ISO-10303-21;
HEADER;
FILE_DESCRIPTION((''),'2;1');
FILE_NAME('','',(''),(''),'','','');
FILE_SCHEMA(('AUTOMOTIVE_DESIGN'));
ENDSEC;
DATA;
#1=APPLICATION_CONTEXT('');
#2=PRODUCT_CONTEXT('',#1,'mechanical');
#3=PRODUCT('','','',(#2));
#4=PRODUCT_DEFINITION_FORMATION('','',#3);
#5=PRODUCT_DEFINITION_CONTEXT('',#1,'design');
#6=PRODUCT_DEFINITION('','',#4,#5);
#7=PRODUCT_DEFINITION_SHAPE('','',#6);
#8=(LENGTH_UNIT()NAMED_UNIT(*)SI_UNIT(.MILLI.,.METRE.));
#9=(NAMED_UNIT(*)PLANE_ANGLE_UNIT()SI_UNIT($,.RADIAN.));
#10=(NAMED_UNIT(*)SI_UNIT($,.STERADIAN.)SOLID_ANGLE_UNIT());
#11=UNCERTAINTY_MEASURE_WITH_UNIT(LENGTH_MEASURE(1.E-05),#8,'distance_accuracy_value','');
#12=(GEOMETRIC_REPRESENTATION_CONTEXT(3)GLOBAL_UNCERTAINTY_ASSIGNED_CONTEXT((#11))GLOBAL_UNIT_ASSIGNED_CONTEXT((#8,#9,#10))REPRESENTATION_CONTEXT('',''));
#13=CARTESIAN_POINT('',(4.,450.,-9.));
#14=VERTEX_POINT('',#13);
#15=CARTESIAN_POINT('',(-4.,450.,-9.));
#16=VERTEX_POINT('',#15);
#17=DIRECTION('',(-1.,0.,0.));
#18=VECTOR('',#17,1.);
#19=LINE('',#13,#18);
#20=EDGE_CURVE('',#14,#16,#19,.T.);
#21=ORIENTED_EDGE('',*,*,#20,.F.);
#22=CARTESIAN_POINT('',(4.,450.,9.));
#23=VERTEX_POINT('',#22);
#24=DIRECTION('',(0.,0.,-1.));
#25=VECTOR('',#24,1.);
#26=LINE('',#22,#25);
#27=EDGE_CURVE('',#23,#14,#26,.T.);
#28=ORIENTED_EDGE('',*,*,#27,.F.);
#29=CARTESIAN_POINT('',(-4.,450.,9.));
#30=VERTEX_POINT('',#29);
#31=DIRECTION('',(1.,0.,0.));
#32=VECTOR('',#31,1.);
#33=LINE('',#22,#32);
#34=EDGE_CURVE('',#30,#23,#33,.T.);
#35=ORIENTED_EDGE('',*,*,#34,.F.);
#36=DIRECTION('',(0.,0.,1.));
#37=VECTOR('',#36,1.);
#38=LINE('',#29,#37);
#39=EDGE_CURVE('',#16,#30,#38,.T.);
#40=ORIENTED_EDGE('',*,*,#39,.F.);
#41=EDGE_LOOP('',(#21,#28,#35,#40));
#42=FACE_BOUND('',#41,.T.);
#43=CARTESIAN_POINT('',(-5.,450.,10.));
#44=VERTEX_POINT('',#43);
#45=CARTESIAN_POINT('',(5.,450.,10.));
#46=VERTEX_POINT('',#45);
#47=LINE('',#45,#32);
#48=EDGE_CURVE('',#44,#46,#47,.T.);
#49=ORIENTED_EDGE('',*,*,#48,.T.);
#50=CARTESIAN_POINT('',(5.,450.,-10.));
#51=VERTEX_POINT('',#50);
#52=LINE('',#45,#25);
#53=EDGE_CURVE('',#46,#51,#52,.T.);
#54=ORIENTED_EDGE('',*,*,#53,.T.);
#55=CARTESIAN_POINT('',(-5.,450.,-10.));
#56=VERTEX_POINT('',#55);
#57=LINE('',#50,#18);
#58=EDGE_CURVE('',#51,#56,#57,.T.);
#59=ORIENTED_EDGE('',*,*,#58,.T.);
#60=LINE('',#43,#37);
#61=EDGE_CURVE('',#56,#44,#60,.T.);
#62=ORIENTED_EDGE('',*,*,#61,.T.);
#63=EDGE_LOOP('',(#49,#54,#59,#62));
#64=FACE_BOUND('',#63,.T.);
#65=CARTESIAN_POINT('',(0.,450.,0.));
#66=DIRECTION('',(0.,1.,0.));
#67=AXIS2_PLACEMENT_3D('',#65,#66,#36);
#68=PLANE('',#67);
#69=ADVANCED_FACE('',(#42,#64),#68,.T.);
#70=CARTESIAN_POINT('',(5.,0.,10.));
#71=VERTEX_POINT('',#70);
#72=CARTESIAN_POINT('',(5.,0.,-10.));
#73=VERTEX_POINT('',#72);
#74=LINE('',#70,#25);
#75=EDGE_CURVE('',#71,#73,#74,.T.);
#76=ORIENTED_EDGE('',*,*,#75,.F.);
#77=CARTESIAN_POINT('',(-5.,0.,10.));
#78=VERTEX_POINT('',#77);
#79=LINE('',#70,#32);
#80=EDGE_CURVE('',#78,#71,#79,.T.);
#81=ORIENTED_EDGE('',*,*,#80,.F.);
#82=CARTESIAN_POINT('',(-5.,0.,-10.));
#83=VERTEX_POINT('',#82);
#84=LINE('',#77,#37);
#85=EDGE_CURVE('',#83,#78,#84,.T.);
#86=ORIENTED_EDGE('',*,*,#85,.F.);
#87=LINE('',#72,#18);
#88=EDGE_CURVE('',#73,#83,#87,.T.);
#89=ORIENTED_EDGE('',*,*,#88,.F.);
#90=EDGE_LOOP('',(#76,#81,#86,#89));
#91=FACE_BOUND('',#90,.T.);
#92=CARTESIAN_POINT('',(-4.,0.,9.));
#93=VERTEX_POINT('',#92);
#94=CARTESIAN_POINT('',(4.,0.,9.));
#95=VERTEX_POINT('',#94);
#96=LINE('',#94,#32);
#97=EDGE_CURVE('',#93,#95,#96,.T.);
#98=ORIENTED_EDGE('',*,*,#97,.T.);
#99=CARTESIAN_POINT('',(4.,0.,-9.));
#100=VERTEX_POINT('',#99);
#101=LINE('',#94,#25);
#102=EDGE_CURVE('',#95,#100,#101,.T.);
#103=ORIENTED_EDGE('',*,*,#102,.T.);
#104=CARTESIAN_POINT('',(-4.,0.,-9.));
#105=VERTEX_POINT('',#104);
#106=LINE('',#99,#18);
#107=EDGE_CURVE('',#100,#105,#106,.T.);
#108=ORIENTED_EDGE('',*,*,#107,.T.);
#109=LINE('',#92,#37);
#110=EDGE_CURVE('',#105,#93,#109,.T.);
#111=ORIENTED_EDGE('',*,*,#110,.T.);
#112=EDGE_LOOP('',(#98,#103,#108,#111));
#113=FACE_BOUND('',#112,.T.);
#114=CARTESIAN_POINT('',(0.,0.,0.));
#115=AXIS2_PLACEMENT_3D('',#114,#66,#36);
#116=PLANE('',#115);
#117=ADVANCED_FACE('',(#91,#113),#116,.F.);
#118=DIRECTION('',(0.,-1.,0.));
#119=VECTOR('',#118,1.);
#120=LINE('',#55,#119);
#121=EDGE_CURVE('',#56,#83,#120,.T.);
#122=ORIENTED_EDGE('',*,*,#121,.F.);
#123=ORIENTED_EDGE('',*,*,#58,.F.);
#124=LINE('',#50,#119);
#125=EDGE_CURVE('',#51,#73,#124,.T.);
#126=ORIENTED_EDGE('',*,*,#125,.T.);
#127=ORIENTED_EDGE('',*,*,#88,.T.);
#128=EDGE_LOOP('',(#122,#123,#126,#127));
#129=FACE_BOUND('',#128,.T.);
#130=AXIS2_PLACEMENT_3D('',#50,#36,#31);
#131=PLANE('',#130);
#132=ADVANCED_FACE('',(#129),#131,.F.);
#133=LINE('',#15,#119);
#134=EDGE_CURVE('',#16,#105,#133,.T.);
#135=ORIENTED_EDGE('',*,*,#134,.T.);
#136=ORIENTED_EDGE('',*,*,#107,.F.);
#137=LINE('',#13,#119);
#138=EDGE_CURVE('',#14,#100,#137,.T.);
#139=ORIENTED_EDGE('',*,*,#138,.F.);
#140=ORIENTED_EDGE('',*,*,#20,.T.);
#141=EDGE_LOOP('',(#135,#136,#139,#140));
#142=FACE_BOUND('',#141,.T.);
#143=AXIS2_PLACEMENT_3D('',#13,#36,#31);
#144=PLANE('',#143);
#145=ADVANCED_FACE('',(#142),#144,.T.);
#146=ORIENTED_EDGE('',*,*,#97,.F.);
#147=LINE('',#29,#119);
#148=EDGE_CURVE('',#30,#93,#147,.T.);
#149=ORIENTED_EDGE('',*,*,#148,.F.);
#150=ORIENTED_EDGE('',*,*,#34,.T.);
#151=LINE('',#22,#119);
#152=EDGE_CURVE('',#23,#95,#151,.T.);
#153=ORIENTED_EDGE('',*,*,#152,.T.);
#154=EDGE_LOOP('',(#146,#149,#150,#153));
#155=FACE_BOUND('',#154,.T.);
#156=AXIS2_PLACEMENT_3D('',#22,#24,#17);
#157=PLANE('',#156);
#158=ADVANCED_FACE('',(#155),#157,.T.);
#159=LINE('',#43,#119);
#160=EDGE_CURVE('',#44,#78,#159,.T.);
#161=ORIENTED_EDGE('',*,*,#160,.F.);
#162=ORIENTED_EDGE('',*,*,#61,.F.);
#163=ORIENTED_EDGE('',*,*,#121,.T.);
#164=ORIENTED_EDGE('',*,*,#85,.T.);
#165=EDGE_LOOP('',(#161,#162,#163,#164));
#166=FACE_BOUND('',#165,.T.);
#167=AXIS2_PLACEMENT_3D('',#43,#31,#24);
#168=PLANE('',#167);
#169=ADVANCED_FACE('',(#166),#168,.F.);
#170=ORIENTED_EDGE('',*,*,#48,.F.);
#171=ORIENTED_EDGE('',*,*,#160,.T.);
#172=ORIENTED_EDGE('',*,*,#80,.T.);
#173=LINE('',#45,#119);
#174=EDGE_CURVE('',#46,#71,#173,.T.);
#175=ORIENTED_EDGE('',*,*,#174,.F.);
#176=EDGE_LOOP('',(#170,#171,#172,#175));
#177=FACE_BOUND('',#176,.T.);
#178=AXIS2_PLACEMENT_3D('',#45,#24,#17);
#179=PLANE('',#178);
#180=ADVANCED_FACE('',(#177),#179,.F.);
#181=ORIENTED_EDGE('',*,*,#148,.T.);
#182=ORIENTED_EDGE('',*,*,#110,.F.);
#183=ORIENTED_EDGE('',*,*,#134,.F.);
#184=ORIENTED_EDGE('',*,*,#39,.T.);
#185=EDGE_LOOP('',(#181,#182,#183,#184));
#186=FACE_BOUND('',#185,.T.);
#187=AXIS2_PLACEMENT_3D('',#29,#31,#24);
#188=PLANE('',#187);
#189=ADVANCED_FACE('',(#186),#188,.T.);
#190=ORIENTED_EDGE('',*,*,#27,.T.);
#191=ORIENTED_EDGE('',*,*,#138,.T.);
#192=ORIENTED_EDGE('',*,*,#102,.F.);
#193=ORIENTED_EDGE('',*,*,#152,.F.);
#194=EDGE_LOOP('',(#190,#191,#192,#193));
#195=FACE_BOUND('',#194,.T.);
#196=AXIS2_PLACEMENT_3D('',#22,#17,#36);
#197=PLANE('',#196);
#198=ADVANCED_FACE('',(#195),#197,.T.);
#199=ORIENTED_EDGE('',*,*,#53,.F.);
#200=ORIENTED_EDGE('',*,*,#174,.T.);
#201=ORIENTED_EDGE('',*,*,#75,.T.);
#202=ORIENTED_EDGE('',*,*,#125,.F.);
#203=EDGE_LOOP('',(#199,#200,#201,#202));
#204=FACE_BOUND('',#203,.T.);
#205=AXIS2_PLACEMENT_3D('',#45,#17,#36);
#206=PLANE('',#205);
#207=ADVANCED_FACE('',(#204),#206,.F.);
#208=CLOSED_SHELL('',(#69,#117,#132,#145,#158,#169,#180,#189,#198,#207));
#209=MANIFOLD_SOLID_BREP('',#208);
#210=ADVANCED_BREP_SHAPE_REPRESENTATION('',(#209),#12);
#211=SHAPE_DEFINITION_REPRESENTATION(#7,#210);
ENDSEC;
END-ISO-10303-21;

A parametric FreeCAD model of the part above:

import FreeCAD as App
import Part
import Sketcher
Q = App.Units.Quantity


def add_polygon(sketch, points):
    """Adds a closed chain of lines whose ends are joined by coincident constraints."""
    first, n = sketch.GeometryCount, len(points)
    for a, b in zip(points, points[1:] + points[:1]):
        sketch.addGeometry(Part.LineSegment(App.Vector(*a, 0), App.Vector(*b, 0)), False)
    for i in range(n):
        sketch.addConstraint(Sketcher.Constraint("Coincident", first + i, 2, first + (i + 1) % n, 1))

doc = App.newDocument("Part")
body = doc.addObject("PartDesign::Body", "Body")

# Sketch on XZ plane
sketch1 = body.newObject("Sketcher::SketchObject", "Sketch")
sketch1.AttachmentSupport = (doc.getObject("XZ_Plane"), [""])
sketch1.MapMode = "FlatFace"
add_polygon(sketch1, [(-5, -10), (-5, 10), (5, 10), (5, -10)])  # lines 0-3
add_polygon(sketch1, [(4, 9), (-4, 9), (-4, -9), (4, -9)])  # lines 4-7
sketch1.addConstraint(Sketcher.Constraint("Vertical", 0))
sketch1.addConstraint(Sketcher.Constraint("Horizontal", 1))
sketch1.addConstraint(Sketcher.Constraint("Vertical", 2))
sketch1.addConstraint(Sketcher.Constraint("Horizontal", 3))
sketch1.addConstraint(Sketcher.Constraint("Horizontal", 4))
sketch1.addConstraint(Sketcher.Constraint("Vertical", 5))
sketch1.addConstraint(Sketcher.Constraint("Horizontal", 6))
sketch1.addConstraint(Sketcher.Constraint("Vertical", 7))
sketch1.addConstraint(Sketcher.Constraint("Symmetric", 0, 2, 2, 2, -1, 1))
sketch1.addConstraint(Sketcher.Constraint("Symmetric", 4, 2, 6, 2, -1, 1))
sketch1.addConstraint(Sketcher.Constraint("DistanceX", 1, 1, 1, 2, Q("10 mm")))
sketch1.addConstraint(Sketcher.Constraint("DistanceX", 4, 2, 4, 1, Q("8 mm")))
sketch1.addConstraint(Sketcher.Constraint("DistanceY", 0, 1, 0, 2, Q("20 mm")))
sketch1.addConstraint(Sketcher.Constraint("DistanceY", 5, 2, 5, 1, Q("18 mm")))
pad1 = body.newObject("PartDesign::Pad", "Pad")
pad1.Profile = sketch1
pad1.Length = 450
pad1.Reversed = True

doc.recompute()
